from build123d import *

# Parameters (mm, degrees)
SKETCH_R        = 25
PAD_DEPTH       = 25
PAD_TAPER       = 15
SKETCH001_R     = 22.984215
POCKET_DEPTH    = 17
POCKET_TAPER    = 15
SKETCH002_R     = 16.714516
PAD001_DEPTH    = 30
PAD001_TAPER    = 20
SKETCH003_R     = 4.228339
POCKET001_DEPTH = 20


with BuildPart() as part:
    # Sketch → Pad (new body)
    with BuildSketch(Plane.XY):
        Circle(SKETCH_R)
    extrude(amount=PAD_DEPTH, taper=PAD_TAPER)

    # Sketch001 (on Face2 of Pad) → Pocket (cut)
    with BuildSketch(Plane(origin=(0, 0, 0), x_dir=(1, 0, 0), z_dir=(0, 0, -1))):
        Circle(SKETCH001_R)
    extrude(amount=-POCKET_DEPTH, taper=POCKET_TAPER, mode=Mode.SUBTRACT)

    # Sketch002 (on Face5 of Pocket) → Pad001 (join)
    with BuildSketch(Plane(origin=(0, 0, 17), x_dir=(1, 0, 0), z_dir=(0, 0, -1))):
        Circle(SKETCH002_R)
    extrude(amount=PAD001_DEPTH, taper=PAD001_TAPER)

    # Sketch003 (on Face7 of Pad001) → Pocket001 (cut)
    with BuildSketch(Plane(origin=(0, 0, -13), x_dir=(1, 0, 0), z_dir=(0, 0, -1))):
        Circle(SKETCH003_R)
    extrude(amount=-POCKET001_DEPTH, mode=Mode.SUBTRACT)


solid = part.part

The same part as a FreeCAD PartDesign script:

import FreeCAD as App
import Part
import Sketcher
from FreeCAD import Vector

doc = App.newDocument("Part")
body = doc.addObject("PartDesign::Body", "Body")

# Sketch on XY plane
sketch1 = body.newObject("Sketcher::SketchObject", "Sketch")
sketch1.AttachmentSupport = (doc.getObject("XY_Plane"), [""])
sketch1.MapMode = "FlatFace"
sketch1.addGeometry(Part.Circle(Vector(0, 0, 0), Vector(0, 0, 1), 25), False)
sketch1.addConstraint([
    Sketcher.Constraint("Coincident", 0, 3, -1, 1),
    Sketcher.Constraint("Diameter", 0, 50.0),
])
pad1 = body.newObject("PartDesign::Pad", "Pad")
pad1.Profile = sketch1
pad1.Length = 25
pad1.TaperAngle = -15

# Sketch on XY plane
sketch2 = body.newObject("Sketcher::SketchObject", "Sketch001")
sketch2.AttachmentSupport = (doc.getObject("XY_Plane"), [""])
sketch2.MapMode = "FlatFace"
sketch2.addGeometry(Part.Circle(Vector(0, 0, 0), Vector(0, 0, 1), 22.984215), False)
sketch2.addConstraint([
    Sketcher.Constraint("Coincident", 0, 3, -1, 1),
    Sketcher.Constraint("Diameter", 0, 45.96843),
])
pocket1 = body.newObject("PartDesign::Pocket", "Pocket")
pocket1.Profile = sketch2
pocket1.Length = 17
pocket1.Reversed = True
pocket1.TaperAngle = -15

# Sketch on XY plane
sketch3 = body.newObject("Sketcher::SketchObject", "Sketch002")
sketch3.AttachmentSupport = (doc.getObject("XY_Plane"), [""])
sketch3.MapMode = "FlatFace"
sketch3.AttachmentOffset = App.Placement(Vector(0, 0, 17), App.Rotation())
sketch3.addGeometry(Part.Circle(Vector(0, 0, 0), Vector(0, 0, 1), 16.714516), False)
sketch3.addConstraint([
    Sketcher.Constraint("Coincident", 0, 3, -1, 1),
    Sketcher.Constraint("Diameter", 0, 33.429032),
])
pad2 = body.newObject("PartDesign::Pad", "Pad001")
pad2.Profile = sketch3
pad2.Length = 30
pad2.Reversed = True
pad2.TaperAngle = -20

# Sketch on XY plane
sketch4 = body.newObject("Sketcher::SketchObject", "Sketch003")
sketch4.AttachmentSupport = (doc.getObject("XY_Plane"), [""])
sketch4.MapMode = "FlatFace"
sketch4.AttachmentOffset = App.Placement(Vector(0, 0, -13), App.Rotation())
sketch4.addGeometry(Part.Circle(Vector(0, 0, 0), Vector(0, 0, 1), 4.228339), False)
sketch4.addConstraint([
    Sketcher.Constraint("Coincident", 0, 3, -1, 1),
    Sketcher.Constraint("Diameter", 0, 8.456678),
])
pocket2 = body.newObject("PartDesign::Pocket", "Pocket001")
pocket2.Profile = sketch4
pocket2.Length = 20
pocket2.Reversed = True

doc.recompute()
